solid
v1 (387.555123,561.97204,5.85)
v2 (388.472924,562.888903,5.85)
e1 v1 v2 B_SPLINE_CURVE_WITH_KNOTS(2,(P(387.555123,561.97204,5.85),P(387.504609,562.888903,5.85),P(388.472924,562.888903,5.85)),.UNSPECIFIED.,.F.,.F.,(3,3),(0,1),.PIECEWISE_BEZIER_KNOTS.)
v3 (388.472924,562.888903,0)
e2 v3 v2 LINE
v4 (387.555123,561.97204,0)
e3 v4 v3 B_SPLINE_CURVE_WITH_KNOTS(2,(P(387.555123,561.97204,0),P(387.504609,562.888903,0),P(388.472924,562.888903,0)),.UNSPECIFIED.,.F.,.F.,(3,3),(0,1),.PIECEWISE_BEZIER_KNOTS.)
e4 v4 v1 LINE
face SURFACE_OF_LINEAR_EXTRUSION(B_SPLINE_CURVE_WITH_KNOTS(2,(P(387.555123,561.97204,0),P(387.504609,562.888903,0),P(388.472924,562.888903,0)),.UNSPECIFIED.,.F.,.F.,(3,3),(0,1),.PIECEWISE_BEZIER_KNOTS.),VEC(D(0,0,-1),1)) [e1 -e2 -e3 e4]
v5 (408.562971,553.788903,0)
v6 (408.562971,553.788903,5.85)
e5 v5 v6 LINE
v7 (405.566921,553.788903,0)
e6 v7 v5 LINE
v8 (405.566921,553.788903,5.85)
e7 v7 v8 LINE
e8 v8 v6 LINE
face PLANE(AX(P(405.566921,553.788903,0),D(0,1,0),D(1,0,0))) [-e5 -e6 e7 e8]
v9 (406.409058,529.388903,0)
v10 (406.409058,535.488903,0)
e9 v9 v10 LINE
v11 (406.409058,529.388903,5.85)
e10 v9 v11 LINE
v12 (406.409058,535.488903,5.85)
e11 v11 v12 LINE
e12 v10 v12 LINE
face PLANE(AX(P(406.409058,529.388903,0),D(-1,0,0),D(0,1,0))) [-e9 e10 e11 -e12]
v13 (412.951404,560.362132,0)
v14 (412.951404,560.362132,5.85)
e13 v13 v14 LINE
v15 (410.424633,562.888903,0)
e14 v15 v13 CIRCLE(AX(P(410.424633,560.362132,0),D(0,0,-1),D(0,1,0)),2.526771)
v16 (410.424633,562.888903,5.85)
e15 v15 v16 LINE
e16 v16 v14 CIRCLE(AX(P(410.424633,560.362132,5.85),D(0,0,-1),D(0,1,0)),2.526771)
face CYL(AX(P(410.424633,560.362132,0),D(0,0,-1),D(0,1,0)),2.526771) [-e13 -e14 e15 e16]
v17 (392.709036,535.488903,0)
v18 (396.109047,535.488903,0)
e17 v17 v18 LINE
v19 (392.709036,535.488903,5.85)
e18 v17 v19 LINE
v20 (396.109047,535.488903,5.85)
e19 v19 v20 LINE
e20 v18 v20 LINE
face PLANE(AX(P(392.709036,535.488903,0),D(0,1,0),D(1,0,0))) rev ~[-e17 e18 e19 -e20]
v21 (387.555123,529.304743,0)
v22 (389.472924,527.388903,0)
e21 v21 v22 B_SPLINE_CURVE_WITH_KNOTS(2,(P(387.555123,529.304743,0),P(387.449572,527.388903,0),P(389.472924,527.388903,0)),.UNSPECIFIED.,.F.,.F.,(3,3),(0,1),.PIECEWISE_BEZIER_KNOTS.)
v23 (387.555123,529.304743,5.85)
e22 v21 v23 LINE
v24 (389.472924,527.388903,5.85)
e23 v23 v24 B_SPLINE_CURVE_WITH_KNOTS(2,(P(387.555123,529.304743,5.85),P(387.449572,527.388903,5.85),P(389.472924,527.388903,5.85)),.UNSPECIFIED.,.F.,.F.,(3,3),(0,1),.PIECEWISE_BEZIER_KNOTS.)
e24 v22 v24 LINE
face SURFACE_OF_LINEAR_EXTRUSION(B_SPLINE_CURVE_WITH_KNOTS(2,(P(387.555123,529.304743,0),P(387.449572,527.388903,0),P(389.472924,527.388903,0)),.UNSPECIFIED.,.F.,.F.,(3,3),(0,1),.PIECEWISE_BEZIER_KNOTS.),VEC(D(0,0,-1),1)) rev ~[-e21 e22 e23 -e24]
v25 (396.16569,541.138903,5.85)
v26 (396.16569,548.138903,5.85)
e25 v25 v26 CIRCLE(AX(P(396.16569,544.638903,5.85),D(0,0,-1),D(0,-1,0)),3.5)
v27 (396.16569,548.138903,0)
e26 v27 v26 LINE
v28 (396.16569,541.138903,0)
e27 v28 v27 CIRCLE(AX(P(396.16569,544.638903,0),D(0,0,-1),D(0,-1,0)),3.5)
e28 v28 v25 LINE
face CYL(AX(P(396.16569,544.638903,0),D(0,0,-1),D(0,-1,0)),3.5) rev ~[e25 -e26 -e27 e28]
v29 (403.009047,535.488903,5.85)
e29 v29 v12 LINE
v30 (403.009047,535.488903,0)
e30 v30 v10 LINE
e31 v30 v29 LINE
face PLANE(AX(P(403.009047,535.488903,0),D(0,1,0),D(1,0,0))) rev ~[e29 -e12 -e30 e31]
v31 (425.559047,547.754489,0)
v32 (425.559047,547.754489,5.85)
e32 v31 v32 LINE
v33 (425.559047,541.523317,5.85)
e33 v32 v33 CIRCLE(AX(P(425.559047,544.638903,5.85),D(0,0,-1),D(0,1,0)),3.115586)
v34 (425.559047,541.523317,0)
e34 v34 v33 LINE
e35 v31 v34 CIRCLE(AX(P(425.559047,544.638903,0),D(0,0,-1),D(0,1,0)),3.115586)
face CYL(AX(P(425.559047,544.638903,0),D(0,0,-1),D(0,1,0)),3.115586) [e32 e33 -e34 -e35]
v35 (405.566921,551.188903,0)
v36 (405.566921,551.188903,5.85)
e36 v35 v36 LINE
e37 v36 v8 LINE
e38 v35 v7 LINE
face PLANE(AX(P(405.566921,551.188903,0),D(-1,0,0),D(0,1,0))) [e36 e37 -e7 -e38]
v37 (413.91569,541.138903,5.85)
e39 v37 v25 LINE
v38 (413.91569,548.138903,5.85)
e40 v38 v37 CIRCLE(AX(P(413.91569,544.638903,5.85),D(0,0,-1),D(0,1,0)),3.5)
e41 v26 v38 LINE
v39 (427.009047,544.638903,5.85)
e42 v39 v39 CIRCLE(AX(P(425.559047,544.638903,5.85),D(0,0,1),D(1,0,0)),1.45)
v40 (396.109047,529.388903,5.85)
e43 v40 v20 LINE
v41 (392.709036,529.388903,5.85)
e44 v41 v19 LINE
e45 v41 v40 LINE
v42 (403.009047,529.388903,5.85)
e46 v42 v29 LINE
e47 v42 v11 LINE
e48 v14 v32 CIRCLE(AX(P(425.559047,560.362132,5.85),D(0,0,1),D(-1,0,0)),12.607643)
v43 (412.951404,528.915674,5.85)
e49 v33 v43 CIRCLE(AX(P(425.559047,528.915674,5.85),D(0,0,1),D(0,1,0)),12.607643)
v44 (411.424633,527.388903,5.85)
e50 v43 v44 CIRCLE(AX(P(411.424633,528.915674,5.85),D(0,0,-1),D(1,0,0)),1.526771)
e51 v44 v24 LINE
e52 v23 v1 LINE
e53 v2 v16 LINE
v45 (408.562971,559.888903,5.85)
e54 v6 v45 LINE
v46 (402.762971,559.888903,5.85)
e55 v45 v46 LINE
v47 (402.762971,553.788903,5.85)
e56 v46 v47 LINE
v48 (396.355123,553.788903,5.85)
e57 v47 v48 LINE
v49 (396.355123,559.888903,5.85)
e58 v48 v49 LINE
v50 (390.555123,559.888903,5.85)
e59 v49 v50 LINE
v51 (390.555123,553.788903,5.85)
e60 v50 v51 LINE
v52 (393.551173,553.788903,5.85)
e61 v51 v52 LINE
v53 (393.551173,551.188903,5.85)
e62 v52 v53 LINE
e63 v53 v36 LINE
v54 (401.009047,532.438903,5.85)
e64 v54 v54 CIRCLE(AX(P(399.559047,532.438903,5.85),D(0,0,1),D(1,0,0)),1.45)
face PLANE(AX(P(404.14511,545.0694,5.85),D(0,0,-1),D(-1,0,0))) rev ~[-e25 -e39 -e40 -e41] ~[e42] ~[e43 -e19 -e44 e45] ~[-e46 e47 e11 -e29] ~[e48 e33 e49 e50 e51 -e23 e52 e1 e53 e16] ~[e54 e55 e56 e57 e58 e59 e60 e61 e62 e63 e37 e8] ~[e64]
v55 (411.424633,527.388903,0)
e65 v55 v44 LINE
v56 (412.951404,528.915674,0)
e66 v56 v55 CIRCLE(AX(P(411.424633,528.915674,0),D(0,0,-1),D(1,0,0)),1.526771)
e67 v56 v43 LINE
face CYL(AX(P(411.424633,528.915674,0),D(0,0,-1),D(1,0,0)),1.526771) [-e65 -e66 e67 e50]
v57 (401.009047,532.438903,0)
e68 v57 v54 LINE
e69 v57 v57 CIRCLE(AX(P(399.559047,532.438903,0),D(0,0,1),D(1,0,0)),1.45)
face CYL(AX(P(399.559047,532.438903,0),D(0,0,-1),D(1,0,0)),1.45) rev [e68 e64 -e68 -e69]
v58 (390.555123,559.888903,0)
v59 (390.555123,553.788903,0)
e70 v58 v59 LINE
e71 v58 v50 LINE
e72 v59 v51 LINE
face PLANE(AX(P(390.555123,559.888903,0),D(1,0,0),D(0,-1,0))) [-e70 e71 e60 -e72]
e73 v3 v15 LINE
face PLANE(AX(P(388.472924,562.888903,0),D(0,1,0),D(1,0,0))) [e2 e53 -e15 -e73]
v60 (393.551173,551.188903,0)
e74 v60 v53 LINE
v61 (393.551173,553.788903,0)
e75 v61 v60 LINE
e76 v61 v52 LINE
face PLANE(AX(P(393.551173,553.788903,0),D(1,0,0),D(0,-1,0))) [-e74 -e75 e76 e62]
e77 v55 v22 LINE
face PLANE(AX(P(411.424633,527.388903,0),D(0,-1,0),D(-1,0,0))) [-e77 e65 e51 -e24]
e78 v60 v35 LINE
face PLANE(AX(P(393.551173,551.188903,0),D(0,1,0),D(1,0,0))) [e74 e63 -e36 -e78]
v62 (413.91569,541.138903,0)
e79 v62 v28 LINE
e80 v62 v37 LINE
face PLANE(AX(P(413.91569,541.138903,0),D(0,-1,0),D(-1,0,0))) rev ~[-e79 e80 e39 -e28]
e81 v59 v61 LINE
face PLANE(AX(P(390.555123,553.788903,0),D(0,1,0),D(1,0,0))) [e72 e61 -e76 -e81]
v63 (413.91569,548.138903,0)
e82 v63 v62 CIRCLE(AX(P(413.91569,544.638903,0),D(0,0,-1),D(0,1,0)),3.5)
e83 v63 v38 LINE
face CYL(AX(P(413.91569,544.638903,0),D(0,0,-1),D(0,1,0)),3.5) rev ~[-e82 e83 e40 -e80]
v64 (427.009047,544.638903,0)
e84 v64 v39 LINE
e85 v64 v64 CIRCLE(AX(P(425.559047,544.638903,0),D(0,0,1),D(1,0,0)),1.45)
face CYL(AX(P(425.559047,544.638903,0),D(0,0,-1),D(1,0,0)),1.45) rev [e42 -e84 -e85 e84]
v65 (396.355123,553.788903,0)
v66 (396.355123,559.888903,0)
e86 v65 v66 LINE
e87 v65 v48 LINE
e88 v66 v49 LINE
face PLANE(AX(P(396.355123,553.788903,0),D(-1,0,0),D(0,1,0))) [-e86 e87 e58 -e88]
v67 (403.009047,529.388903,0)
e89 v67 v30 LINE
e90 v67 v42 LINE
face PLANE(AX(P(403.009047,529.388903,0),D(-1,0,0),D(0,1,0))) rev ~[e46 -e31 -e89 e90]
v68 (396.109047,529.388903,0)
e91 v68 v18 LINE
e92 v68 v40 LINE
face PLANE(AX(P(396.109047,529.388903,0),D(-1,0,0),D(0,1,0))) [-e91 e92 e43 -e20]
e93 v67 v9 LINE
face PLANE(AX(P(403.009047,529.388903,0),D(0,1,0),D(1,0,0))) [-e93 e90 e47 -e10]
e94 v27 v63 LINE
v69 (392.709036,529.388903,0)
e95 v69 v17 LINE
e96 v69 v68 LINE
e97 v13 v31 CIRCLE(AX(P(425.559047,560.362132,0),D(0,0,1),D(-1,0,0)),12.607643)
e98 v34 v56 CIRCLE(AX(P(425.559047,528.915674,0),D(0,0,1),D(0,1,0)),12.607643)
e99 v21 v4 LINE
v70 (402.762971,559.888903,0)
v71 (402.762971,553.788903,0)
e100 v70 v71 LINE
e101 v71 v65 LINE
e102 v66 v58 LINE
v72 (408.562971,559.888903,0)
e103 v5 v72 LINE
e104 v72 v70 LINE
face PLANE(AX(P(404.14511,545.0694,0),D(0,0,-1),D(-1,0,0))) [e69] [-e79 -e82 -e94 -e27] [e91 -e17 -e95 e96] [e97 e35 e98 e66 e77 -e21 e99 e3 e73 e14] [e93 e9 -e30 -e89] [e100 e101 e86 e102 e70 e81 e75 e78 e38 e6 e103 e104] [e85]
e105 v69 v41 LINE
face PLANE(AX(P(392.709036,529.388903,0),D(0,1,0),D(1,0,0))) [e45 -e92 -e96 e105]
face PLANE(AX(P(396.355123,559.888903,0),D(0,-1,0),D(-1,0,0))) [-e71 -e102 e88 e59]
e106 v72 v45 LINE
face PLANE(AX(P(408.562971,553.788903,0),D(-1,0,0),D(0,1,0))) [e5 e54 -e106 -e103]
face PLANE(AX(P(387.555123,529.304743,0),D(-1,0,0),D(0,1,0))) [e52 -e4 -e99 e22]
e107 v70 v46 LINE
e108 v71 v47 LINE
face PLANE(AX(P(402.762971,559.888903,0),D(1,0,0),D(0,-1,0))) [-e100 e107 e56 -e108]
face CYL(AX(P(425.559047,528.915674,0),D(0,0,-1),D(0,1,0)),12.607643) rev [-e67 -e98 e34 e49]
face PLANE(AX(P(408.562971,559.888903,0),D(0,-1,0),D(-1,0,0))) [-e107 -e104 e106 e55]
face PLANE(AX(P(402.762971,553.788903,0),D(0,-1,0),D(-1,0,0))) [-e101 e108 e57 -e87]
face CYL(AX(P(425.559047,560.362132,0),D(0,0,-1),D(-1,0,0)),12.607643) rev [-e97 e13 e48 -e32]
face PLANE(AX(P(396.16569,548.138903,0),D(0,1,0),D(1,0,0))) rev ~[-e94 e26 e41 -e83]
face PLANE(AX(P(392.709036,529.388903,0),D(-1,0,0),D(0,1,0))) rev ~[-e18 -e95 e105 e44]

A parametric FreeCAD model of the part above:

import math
import FreeCAD as App
import Part
import Sketcher

doc = App.newDocument("Part")
params = doc.addObject("Spreadsheet::Sheet", "Params")
for row, (alias, value) in enumerate([
    ("sketch1_diameter", "2.9 mm"),
    ("sketch1_radius", "3.5 mm"),
    ("sketch1_width", "5.8 mm"),
    ("sketch1_height", "6.1 mm"),
    ("sketch1_height2", "2.6 mm"),
    ("pad1_length", "5.85 mm"),
], start=1):
    params.set(f"A{row}", alias)
    params.set(f"B{row}", "=" + value)
    params.setAlias(f"B{row}", alias)

body = doc.addObject("PartDesign::Body", "Body")

sketch1 = body.newObject("Sketcher::SketchObject", "Sketch")
sketch1.AttachmentSupport = (doc.getObject("XY_Plane"), [""])
sketch1.MapMode = "FlatFace"
sketch1.addGeometry([
    Part.LineSegment(App.Vector(410.424633, 562.888903, 0), App.Vector(388.472924, 562.888903, 0)),
    Part.BSplineCurve([App.Vector(387.555123, 561.97204, 0), App.Vector(387.504609, 562.888903, 0), App.Vector(388.472924, 562.888903, 0)], [3, 3], [0, 1], False, 2, [1, 1, 1], False),
    Part.LineSegment(App.Vector(387.555123, 561.97204, 0), App.Vector(387.555123, 529.304743, 0)),
    Part.BSplineCurve([App.Vector(387.555123, 529.304743, 0), App.Vector(387.449572, 527.388903, 0), App.Vector(389.472924, 527.388903, 0)], [3, 3], [0, 1], False, 2, [1, 1, 1], False),
    Part.LineSegment(App.Vector(389.472924, 527.388903, 0), App.Vector(411.424633, 527.388903, 0)),
    Part.ArcOfCircle(Part.Circle(App.Vector(411.424633, 528.915674, 0), App.Vector(0, 0, 1), 1.526771), math.radians(-90), math.radians(0)),
    Part.ArcOfCircle(Part.Circle(App.Vector(425.559047, 528.915674, 0), App.Vector(0, 0, 1), 12.607643), math.radians(90), math.radians(180)),
    Part.ArcOfCircle(Part.Circle(App.Vector(425.559047, 544.638903, 0), App.Vector(0, 0, 1), 3.115586), math.radians(-90), math.radians(90)),
    Part.ArcOfCircle(Part.Circle(App.Vector(425.559047, 560.362132, 0), App.Vector(0, 0, 1), 12.607643), math.radians(-180), math.radians(-90)),
    Part.ArcOfCircle(Part.Circle(App.Vector(410.424633, 560.362132, 0), App.Vector(0, 0, 1), 2.526771), math.radians(0), math.radians(90)),
    Part.LineSegment(App.Vector(403.009047, 529.388903, 0), App.Vector(403.009047, 535.488903, 0)),
    Part.LineSegment(App.Vector(403.009047, 535.488903, 0), App.Vector(406.409058, 535.488903, 0)),
    Part.LineSegment(App.Vector(406.409058, 535.488903, 0), App.Vector(406.409058, 529.388903, 0)),
    Part.LineSegment(App.Vector(406.409058, 529.388903, 0), App.Vector(403.009047, 529.388903, 0)),
    Part.Circle(App.Vector(399.559047, 532.438903, 0), App.Vector(0, 0, 1), 1.45),
    Part.LineSegment(App.Vector(392.709036, 529.388903, 0), App.Vector(392.709036, 535.488903, 0)),
    Part.LineSegment(App.Vector(392.709036, 535.488903, 0), App.Vector(396.109047, 535.488903, 0)),
    Part.LineSegment(App.Vector(396.109047, 535.488903, 0), App.Vector(396.109047, 529.388903, 0)),
    Part.LineSegment(App.Vector(396.109047, 529.388903, 0), App.Vector(392.709036, 529.388903, 0)),
    Part.Circle(App.Vector(425.559047, 544.638903, 0), App.Vector(0, 0, 1), 1.45),
    Part.LineSegment(App.Vector(396.16569, 548.138903, 0), App.Vector(413.91569, 548.138903, 0)),
    Part.ArcOfCircle(Part.Circle(App.Vector(413.91569, 544.638903, 0), App.Vector(0, 0, 1), 3.5), math.radians(-90), math.radians(90)),
    Part.LineSegment(App.Vector(413.91569, 541.138903, 0), App.Vector(396.16569, 541.138903, 0)),
    Part.ArcOfCircle(Part.Circle(App.Vector(396.16569, 544.638903, 0), App.Vector(0, 0, 1), 3.5), math.radians(90), math.radians(270)),
    Part.LineSegment(App.Vector(405.566921, 551.188903, 0), App.Vector(393.551173, 551.188903, 0)),
    Part.LineSegment(App.Vector(393.551173, 551.188903, 0), App.Vector(393.551173, 553.788903, 0)),
    Part.LineSegment(App.Vector(393.551173, 553.788903, 0), App.Vector(390.555123, 553.788903, 0)),
    Part.LineSegment(App.Vector(390.555123, 553.788903, 0), App.Vector(390.555123, 559.888903, 0)),
    Part.LineSegment(App.Vector(390.555123, 559.888903, 0), App.Vector(396.355123, 559.888903, 0)),
    Part.LineSegment(App.Vector(396.355123, 559.888903, 0), App.Vector(396.355123, 553.788903, 0)),
    Part.LineSegment(App.Vector(396.355123, 553.788903, 0), App.Vector(402.762971, 553.788903, 0)),
    Part.LineSegment(App.Vector(402.762971, 553.788903, 0), App.Vector(402.762971, 559.888903, 0)),
    Part.LineSegment(App.Vector(402.762971, 559.888903, 0), App.Vector(408.562971, 559.888903, 0)),
    Part.LineSegment(App.Vector(408.562971, 559.888903, 0), App.Vector(408.562971, 553.788903, 0)),
    Part.LineSegment(App.Vector(408.562971, 553.788903, 0), App.Vector(405.566921, 553.788903, 0)),
    Part.LineSegment(App.Vector(405.566921, 553.788903, 0), App.Vector(405.566921, 551.188903, 0)),
], False)
sketch1.addConstraint([
    Sketcher.Constraint("Block", 1),
    Sketcher.Constraint("Block", 3),
    Sketcher.Constraint("Coincident", 0, 2, 1, 2),
    Sketcher.Constraint("Coincident", 1, 1, 2, 1),
    Sketcher.Constraint("Coincident", 2, 2, 3, 1),
    Sketcher.Constraint("Coincident", 3, 2, 4, 1),
    Sketcher.Constraint("Tangent", 4, 2, 5, 1),
    Sketcher.Constraint("Tangent", 5, 2, 6, 2),
    Sketcher.Constraint("Tangent", 6, 1, 7, 1),
    Sketcher.Constraint("Tangent", 7, 2, 8, 2),
    Sketcher.Constraint("Tangent", 8, 1, 9, 1),
    Sketcher.Constraint("Tangent", 9, 2, 0, 1),
    Sketcher.Constraint("Coincident", 10, 2, 11, 1),
    Sketcher.Constraint("Coincident", 11, 2, 12, 1),
    Sketcher.Constraint("Coincident", 12, 2, 13, 1),
    Sketcher.Constraint("Coincident", 13, 2, 10, 1),
    Sketcher.Constraint("Coincident", 15, 2, 16, 1),
    Sketcher.Constraint("Coincident", 16, 2, 17, 1),
    Sketcher.Constraint("Coincident", 17, 2, 18, 1),
    Sketcher.Constraint("Coincident", 18, 2, 15, 1),
    Sketcher.Constraint("Tangent", 20, 2, 21, 2),
    Sketcher.Constraint("Tangent", 21, 1, 22, 1),
    Sketcher.Constraint("Tangent", 22, 2, 23, 2),
    Sketcher.Constraint("Tangent", 23, 1, 20, 1),
    Sketcher.Constraint("Coincident", 24, 2, 25, 1),
    Sketcher.Constraint("Coincident", 25, 2, 26, 1),
    Sketcher.Constraint("Coincident", 26, 2, 27, 1),
    Sketcher.Constraint("Coincident", 27, 2, 28, 1),
    Sketcher.Constraint("Coincident", 28, 2, 29, 1),
    Sketcher.Constraint("Coincident", 29, 2, 30, 1),
    Sketcher.Constraint("Coincident", 30, 2, 31, 1),
    Sketcher.Constraint("Coincident", 31, 2, 32, 1),
    Sketcher.Constraint("Coincident", 32, 2, 33, 1),
    Sketcher.Constraint("Coincident", 33, 2, 34, 1),
    Sketcher.Constraint("Coincident", 34, 2, 35, 1),
    Sketcher.Constraint("Coincident", 35, 2, 24, 1),
    Sketcher.Constraint("Horizontal", 0),
    Sketcher.Constraint("Horizontal", 4),
    Sketcher.Constraint("Vertical", 10),
    Sketcher.Constraint("Horizontal", 11),
    Sketcher.Constraint("Vertical", 12),
    Sketcher.Constraint("Horizontal", 13),
    Sketcher.Constraint("Vertical", 15),
    Sketcher.Constraint("Horizontal", 16),
    Sketcher.Constraint("Vertical", 17),
    Sketcher.Constraint("Horizontal", 18),
    Sketcher.Constraint("Horizontal", 20),
    Sketcher.Constraint("Horizontal", 22),
    Sketcher.Constraint("Horizontal", 24),
    Sketcher.Constraint("Vertical", 25),
    Sketcher.Constraint("Horizontal", 26),
    Sketcher.Constraint("Vertical", 27),
    Sketcher.Constraint("Horizontal", 28),
    Sketcher.Constraint("Vertical", 29),
    Sketcher.Constraint("Horizontal", 30),
    Sketcher.Constraint("Vertical", 31),
    Sketcher.Constraint("Horizontal", 32),
    Sketcher.Constraint("Vertical", 33),
    Sketcher.Constraint("Horizontal", 34),
    Sketcher.Constraint("Vertical", 35),
    Sketcher.Constraint("Coincident", 19, 3, 7, 3),
    Sketcher.Constraint("Equal", 6, 8),
    Sketcher.Constraint("Equal", 14, 19),
    Sketcher.Constraint("Horizontal", 5, 3, 6, 3),
    Sketcher.Constraint("Horizontal", 8, 3, 9, 3),
    Sketcher.Constraint("Horizontal", 19, 3, 21, 3),
    Sketcher.Constraint("Horizontal", 11, 2, 15, 2),
    Sketcher.Constraint("Horizontal", 13, 2, 17, 2),
    Sketcher.Constraint("Horizontal", 26, 2, 29, 2),
    Sketcher.Constraint("Horizontal", 28, 2, 31, 2),
    Sketcher.Constraint("Horizontal", 30, 2, 33, 2),
    Sketcher.Constraint("Vertical", 6, 3, 7, 3),
    Sketcher.Constraint("Vertical", 7, 3, 8, 3),
    Sketcher.Constraint("Equal", 0, 4),
    Sketcher.Constraint("Equal", 13, 16),
    Sketcher.Constraint("Equal", 28, 32),
    Sketcher.Constraint("Equal", 26, 34),
    Sketcher.Constraint("Equal", 17, 27),
    Sketcher.Constraint("Diameter", 14, 2.9),
    Sketcher.Constraint("Radius", 21, 3.5),
    Sketcher.Constraint("DistanceX", 28, 1, 28, 2, 5.8),
    Sketcher.Constraint("DistanceY", 10, 1, 10, 2, 6.1),
    Sketcher.Constraint("DistanceY", 25, 1, 25, 2, 2.6),
    Sketcher.Constraint("DistanceX", 14, 3, 6, 3, 26.0),
    Sketcher.Constraint("DistanceY", 4, 2, 12, 2, 2.0),
    Sketcher.Constraint("DistanceY", 27, 2, 0, 2, 3.0),
    Sketcher.Constraint("DistanceX", 20, 1, 20, 2, 17.75),
    Sketcher.Constraint("DistanceY", 14, 3, 7, 3, 12.2),
    Sketcher.Constraint("DistanceX", 16, 2, 10, 2, 6.9),
    Sketcher.Constraint("Radius", 5, 1.526771),
    Sketcher.Constraint("DistanceX", 14, 3, 10, 2, 3.45),
    Sketcher.Constraint("Radius", 6, 12.607643),
    Sketcher.Constraint("DistanceX", 0, 2, 0, 1, 21.951709),
    Sketcher.Constraint("DistanceX", 11, 1, 11, 2, 3.400011),
    Sketcher.Constraint("DistanceX", 24, 2, 24, 1, 12.015748),
    Sketcher.Constraint("DistanceX", 26, 2, 26, 1, 2.99605),
    Sketcher.Constraint("DistanceX", 0, 2, 26, 2, 2.082199),
    Sketcher.Constraint("DistanceX", -1, 1, 21, 3, 413.91569),
])
sketch1.setExpression("Constraints[78]", "Params.sketch1_diameter")
sketch1.setExpression("Constraints[79]", "Params.sketch1_radius")
sketch1.setExpression("Constraints[80]", "Params.sketch1_width")
sketch1.setExpression("Constraints[81]", "Params.sketch1_height")
sketch1.setExpression("Constraints[82]", "Params.sketch1_height2")
pad1 = body.newObject("PartDesign::Pad", "Pad")
pad1.Profile = sketch1
pad1.setExpression("Length", "Params.pad1_length")

doc.recompute()
